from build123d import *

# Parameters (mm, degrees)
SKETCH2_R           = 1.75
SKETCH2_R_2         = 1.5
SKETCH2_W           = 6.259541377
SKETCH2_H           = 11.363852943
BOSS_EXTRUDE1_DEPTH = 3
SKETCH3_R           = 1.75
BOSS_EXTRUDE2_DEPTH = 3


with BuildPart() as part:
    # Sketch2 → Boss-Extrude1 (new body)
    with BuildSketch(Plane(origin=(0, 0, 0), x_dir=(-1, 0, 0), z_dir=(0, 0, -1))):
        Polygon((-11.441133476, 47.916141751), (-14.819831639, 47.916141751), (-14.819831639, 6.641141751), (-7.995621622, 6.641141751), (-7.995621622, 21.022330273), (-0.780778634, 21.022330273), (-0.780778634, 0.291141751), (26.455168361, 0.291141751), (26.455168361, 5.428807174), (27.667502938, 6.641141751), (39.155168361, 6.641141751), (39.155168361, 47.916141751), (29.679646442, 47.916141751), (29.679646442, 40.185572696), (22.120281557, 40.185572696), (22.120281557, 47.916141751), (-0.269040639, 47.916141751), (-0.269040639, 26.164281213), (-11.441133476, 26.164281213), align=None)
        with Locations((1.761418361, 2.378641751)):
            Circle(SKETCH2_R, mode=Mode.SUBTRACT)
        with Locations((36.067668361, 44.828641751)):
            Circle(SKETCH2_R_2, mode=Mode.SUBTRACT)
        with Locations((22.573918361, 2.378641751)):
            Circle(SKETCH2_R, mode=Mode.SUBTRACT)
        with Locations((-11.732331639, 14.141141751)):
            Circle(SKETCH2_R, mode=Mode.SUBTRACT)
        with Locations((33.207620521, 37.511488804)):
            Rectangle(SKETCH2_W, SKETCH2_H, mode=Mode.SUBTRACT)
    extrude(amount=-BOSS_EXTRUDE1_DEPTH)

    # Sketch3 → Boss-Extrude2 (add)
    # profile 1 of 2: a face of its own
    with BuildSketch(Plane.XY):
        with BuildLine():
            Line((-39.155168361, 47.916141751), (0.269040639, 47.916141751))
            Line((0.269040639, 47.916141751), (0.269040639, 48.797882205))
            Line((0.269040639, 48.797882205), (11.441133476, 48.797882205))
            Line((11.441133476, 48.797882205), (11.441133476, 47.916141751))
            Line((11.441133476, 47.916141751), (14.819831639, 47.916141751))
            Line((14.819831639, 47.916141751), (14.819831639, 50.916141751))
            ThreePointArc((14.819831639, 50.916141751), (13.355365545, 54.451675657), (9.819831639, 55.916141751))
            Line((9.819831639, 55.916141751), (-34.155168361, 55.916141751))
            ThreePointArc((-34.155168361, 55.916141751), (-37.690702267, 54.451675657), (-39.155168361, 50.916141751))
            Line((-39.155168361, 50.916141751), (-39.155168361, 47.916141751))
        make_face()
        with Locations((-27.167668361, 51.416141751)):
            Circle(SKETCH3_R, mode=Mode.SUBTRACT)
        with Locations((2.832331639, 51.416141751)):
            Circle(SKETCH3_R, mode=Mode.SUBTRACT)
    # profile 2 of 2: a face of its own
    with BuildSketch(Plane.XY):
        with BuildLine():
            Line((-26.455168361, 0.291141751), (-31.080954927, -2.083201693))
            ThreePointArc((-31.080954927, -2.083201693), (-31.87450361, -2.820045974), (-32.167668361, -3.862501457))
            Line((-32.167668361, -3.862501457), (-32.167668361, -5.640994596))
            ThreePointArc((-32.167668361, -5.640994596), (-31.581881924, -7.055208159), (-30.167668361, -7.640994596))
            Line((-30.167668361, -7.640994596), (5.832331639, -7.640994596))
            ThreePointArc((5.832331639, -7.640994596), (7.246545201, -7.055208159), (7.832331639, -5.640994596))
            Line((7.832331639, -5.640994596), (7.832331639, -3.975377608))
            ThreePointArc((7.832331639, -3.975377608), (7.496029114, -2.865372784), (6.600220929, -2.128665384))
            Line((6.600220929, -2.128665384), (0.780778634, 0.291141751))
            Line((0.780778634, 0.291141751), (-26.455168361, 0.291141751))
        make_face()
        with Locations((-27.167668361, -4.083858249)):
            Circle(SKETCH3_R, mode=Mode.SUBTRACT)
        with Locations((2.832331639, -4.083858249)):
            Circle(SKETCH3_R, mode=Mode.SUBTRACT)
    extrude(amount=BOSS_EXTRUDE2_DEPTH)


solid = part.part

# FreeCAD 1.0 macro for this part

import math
import FreeCAD as App
import Part
import Sketcher
from FreeCAD import Vector
Q = App.Units.Quantity


def add_polygon(sketch, points):
    """Adds a closed chain of lines whose ends are joined by coincident constraints."""
    first, n = sketch.GeometryCount, len(points)
    for a, b in zip(points, points[1:] + points[:1]):
        sketch.addGeometry(Part.LineSegment(App.Vector(*a, 0), App.Vector(*b, 0)), False)
    for i in range(n):
        sketch.addConstraint(Sketcher.Constraint("Coincident", first + i, 2, first + (i + 1) % n, 1))

doc = App.newDocument("Part")
params = doc.addObject("Spreadsheet::Sheet", "Params")
for row, (alias, value) in enumerate([
    ("sketch1_diameter", "3 mm"),
    ("sketch1_diameter2", "3.5 mm"),
    ("pad1_length", "3 mm"),
    ("sketch2_radius", "5 mm"),
    ("sketch2_radius2", "2 mm"),
    ("sketch2_diameter", "3.5 mm"),
    ("sketch2_width", "36 mm"),
    ("sketch2_height", "3 mm"),
    ("pad2_length", "3 mm"),
], start=1):
    params.set(f"A{row}", alias)
    params.set(f"B{row}", "=" + value)
    params.setAlias(f"B{row}", alias)

body = doc.addObject("PartDesign::Body", "Body")

# Sketch on XY plane
sketch1 = body.newObject("Sketcher::SketchObject", "Sketch")
sketch1.AttachmentSupport = (doc.getObject("XY_Plane"), [""])
sketch1.MapMode = "FlatFace"
add_polygon(sketch1, [(11.4, 47.9), (14.8, 47.9), (14.8, 6.6), (8, 6.6), (8, 21), (0.8, 21), (0.8, 0.3), (-26.5, 0.3), (-26.5, 5.4), (-27.7, 6.6), (-39.2, 6.6), (-39.2, 47.9), (-29.7, 47.9), (-29.7, 40.2), (-22.1, 40.2), (-22.1, 47.9), (0.3, 47.9), (0.3, 26.2), (11.4, 26.2)])  # lines 0-18
sketch1.addGeometry(Part.Circle(Vector(-1.8, 2.4, 0), Vector(0, 0, 1), 1.8), False)  # 19
sketch1.addGeometry(Part.Circle(Vector(11.7, 14.1, 0), Vector(0, 0, 1), 1.8), False)  # 20
sketch1.addGeometry(Part.Circle(Vector(-22.6, 2.4, 0), Vector(0, 0, 1), 1.8), False)  # 21
add_polygon(sketch1, [(-36.3, 31.8), (-30.1, 31.8), (-30.1, 43.2), (-36.3, 43.2)])  # lines 22-25
sketch1.addGeometry(Part.Circle(Vector(-36.1, 44.8, 0), Vector(0, 0, 1), 1.5), False)  # 26
sketch1.addConstraint(Sketcher.Constraint("Horizontal", 0))
sketch1.addConstraint(Sketcher.Constraint("Vertical", 1))
sketch1.addConstraint(Sketcher.Constraint("Horizontal", 2))
sketch1.addConstraint(Sketcher.Constraint("Vertical", 3))
sketch1.addConstraint(Sketcher.Constraint("Horizontal", 4))
sketch1.addConstraint(Sketcher.Constraint("Vertical", 5))
sketch1.addConstraint(Sketcher.Constraint("Horizontal", 6))
sketch1.addConstraint(Sketcher.Constraint("Vertical", 7))
sketch1.addConstraint(Sketcher.Constraint("Horizontal", 9))
sketch1.addConstraint(Sketcher.Constraint("Vertical", 10))
sketch1.addConstraint(Sketcher.Constraint("Horizontal", 11))
sketch1.addConstraint(Sketcher.Constraint("Vertical", 12))
sketch1.addConstraint(Sketcher.Constraint("Horizontal", 13))
sketch1.addConstraint(Sketcher.Constraint("Vertical", 14))
sketch1.addConstraint(Sketcher.Constraint("Horizontal", 15))
sketch1.addConstraint(Sketcher.Constraint("Vertical", 16))
sketch1.addConstraint(Sketcher.Constraint("Horizontal", 17))
sketch1.addConstraint(Sketcher.Constraint("Vertical", 18))
sketch1.addConstraint(Sketcher.Constraint("Horizontal", 22))
sketch1.addConstraint(Sketcher.Constraint("Vertical", 23))
sketch1.addConstraint(Sketcher.Constraint("Horizontal", 24))
sketch1.addConstraint(Sketcher.Constraint("Vertical", 25))
sketch1.addConstraint(Sketcher.Constraint("Equal", 19, 20))
sketch1.addConstraint(Sketcher.Constraint("Equal", 20, 21))
sketch1.addConstraint(Sketcher.Constraint("Horizontal", 19, 3, 21, 3))
sketch1.addConstraint(Sketcher.Constraint("Horizontal", 2, 2, 8, 2))
sketch1.addConstraint(Sketcher.Constraint("Horizontal", 0, 2, 10, 2))
sketch1.addConstraint(Sketcher.Constraint("Horizontal", 11, 2, 14, 2))
sketch1.addConstraint(Sketcher.Constraint("Diameter", 26, Q("3 mm")))
sketch1.addConstraint(Sketcher.Constraint("Diameter", 19, Q("3.5 mm")))
sketch1.addConstraint(Sketcher.Constraint("Angle", 8, Q("135 deg")))
sketch1.addConstraint(Sketcher.Constraint("DistanceX", 26, 3, 20, 3, Q("47.8 mm")))
sketch1.addConstraint(Sketcher.Constraint("DistanceY", 1, 2, 20, 3, Q("7.5 mm")))
sketch1.addConstraint(Sketcher.Constraint("DistanceX", 9, 2, 7, 2, Q("12.7 mm")))
sketch1.addConstraint(Sketcher.Constraint("DistanceY", 1, 2, 1, 1, Q("41.275 mm")))
sketch1.addConstraint(Sketcher.Constraint("DistanceY", 21, 3, 26, 3, Q("42.45 mm")))
sketch1.addConstraint(Sketcher.Constraint("DistanceY", 5, 2, 2, 2, Q("6.35 mm")))
sketch1.addConstraint(Sketcher.Constraint("DistanceX", 0, 1, 0, 2, Q("3.378698 mm")))
sketch1.addConstraint(Sketcher.Constraint("Distance", 8, Q("1.7145 mm")))
sketch1.addConstraint(Sketcher.Constraint("DistanceX", 2, 2, 2, 1, Q("6.82421 mm")))
sketch1.addConstraint(Sketcher.Constraint("DistanceX", 11, 1, 11, 2, Q("9.475522 mm")))
sketch1.addConstraint(Sketcher.Constraint("DistanceX", 22, 1, 22, 2, Q("6.259541 mm")))
sketch1.addConstraint(Sketcher.Constraint("DistanceY", 3, 1, 3, 2, Q("14.381189 mm")))
sketch1.addConstraint(Sketcher.Constraint("DistanceY", 12, 2, 12, 1, Q("7.730569 mm")))
sketch1.addConstraint(Sketcher.Constraint("DistanceY", 16, 2, 16, 1, Q("21.751861 mm")))
sketch1.addConstraint(Sketcher.Constraint("DistanceY", 19, 3, 20, 3, Q("11.7625 mm")))
sketch1.addConstraint(Sketcher.Constraint("DistanceX", 21, 3, 19, 3, Q("20.8125 mm")))
sketch1.addConstraint(Sketcher.Constraint("DistanceX", 20, 3, 0, 2, Q("3.0875 mm")))
sketch1.addConstraint(Sketcher.Constraint("DistanceX", 10, 2, 26, 3, Q("3.0875 mm")))
sketch1.addConstraint(Sketcher.Constraint("DistanceX", 4, 2, 4, 1, Q("7.214843 mm")))
sketch1.addConstraint(Sketcher.Constraint("DistanceX", 13, 1, 13, 2, Q("7.559365 mm")))
sketch1.addConstraint(Sketcher.Constraint("DistanceX", 15, 1, 15, 2, Q("22.389322 mm")))
sketch1.addConstraint(Sketcher.Constraint("DistanceY", 23, 1, 23, 2, Q("11.363853 mm")))
sketch1.addConstraint(Sketcher.Constraint("DistanceX", 19, 3, -1, 1, Q("1.761418 mm")))
sketch1.addConstraint(Sketcher.Constraint("DistanceY", -1, 1, 19, 3, Q("2.378642 mm")))
sketch1.addConstraint(Sketcher.Constraint("DistanceX", -1, 1, 20, 3, Q("11.732332 mm")))
sketch1.addConstraint(Sketcher.Constraint("DistanceX", 22, 2, -1, 1, Q("30.07785 mm")))
sketch1.addConstraint(Sketcher.Constraint("DistanceY", 22, 2, 12, 2, Q("8.35601 mm")))
sketch1.setExpression("Constraints[51]", "Params.sketch1_diameter")
sketch1.setExpression("Constraints[52]", "Params.sketch1_diameter2")
pad1 = body.newObject("PartDesign::Pad", "Pad")
pad1.Profile = sketch1
pad1.setExpression("Length", "Params.pad1_length")

# Sketch on XY plane
sketch2 = body.newObject("Sketcher::SketchObject", "Sketch001")
sketch2.AttachmentSupport = (doc.getObject("XY_Plane"), [""])
sketch2.MapMode = "FlatFace"
sketch2.addGeometry(Part.LineSegment(Vector(-39.2, 47.9, 0), Vector(0.3, 47.9, 0)), False)
sketch2.addGeometry(Part.LineSegment(Vector(0.3, 47.9, 0), Vector(0.3, 48.8, 0)), False)
sketch2.addGeometry(Part.LineSegment(Vector(0.3, 48.8, 0), Vector(11.4, 48.8, 0)), False)
sketch2.addGeometry(Part.LineSegment(Vector(11.4, 48.8, 0), Vector(11.4, 47.9, 0)), False)
sketch2.addGeometry(Part.LineSegment(Vector(11.4, 47.9, 0), Vector(14.8, 47.9, 0)), False)
sketch2.addGeometry(Part.LineSegment(Vector(14.8, 47.9, 0), Vector(14.8, 50.9, 0)), False)
sketch2.addGeometry(Part.ArcOfCircle(Part.Circle(Vector(9.8, 50.9, 0), Vector(0, 0, 1), 5), math.radians(0), math.radians(90)), False)
sketch2.addGeometry(Part.LineSegment(Vector(9.8, 55.9, 0), Vector(-34.2, 55.9, 0)), False)
sketch2.addGeometry(Part.ArcOfCircle(Part.Circle(Vector(-34.2, 50.9, 0), Vector(0, 0, 1), 5), math.radians(90), math.radians(180)), False)
sketch2.addGeometry(Part.LineSegment(Vector(-39.2, 50.9, 0), Vector(-39.2, 47.9, 0)), False)
sketch2.addGeometry(Part.Circle(Vector(-27.2, 51.4, 0), Vector(0, 0, 1), 1.8), False)
sketch2.addGeometry(Part.Circle(Vector(2.8, 51.4, 0), Vector(0, 0, 1), 1.8), False)
sketch2.addGeometry(Part.LineSegment(Vector(-26.5, 0.3, 0), Vector(-31.1, -2.1, 0)), False)
sketch2.addGeometry(Part.ArcOfCircle(Part.Circle(Vector(-30.2, -3.9, 0), Vector(0, 0, 1), 2), math.radians(117), math.radians(180)), False)
sketch2.addGeometry(Part.LineSegment(Vector(-32.2, -3.9, 0), Vector(-32.2, -5.6, 0)), False)
sketch2.addGeometry(Part.ArcOfCircle(Part.Circle(Vector(-30.2, -5.6, 0), Vector(0, 0, 1), 2), math.radians(180), math.radians(270)), False)
sketch2.addGeometry(Part.LineSegment(Vector(-30.2, -7.6, 0), Vector(5.8, -7.6, 0)), False)
sketch2.addGeometry(Part.ArcOfCircle(Part.Circle(Vector(5.8, -5.6, 0), Vector(0, 0, 1), 2), math.radians(-90), math.radians(0)), False)
sketch2.addGeometry(Part.LineSegment(Vector(7.8, -5.6, 0), Vector(7.8, -4, 0)), False)
sketch2.addGeometry(Part.ArcOfCircle(Part.Circle(Vector(5.8, -4, 0), Vector(0, 0, 1), 2), math.radians(0), math.radians(67)), False)
sketch2.addGeometry(Part.LineSegment(Vector(6.6, -2.1, 0), Vector(0.8, 0.3, 0)), False)
sketch2.addGeometry(Part.LineSegment(Vector(0.8, 0.3, 0), Vector(-26.5, 0.3, 0)), False)
sketch2.addGeometry(Part.Circle(Vector(-27.2, -4.1, 0), Vector(0, 0, 1), 1.8), False)
sketch2.addGeometry(Part.Circle(Vector(2.8, -4.1, 0), Vector(0, 0, 1), 1.8), False)
sketch2.addConstraint(Sketcher.Constraint("Coincident", 0, 2, 1, 1))
sketch2.addConstraint(Sketcher.Constraint("Coincident", 1, 2, 2, 1))
sketch2.addConstraint(Sketcher.Constraint("Coincident", 2, 2, 3, 1))
sketch2.addConstraint(Sketcher.Constraint("Coincident", 3, 2, 4, 1))
sketch2.addConstraint(Sketcher.Constraint("Coincident", 4, 2, 5, 1))
sketch2.addConstraint(Sketcher.Constraint("Tangent", 5, 2, 6, 1))
sketch2.addConstraint(Sketcher.Constraint("Tangent", 6, 2, 7, 1))
sketch2.addConstraint(Sketcher.Constraint("Tangent", 7, 2, 8, 1))
sketch2.addConstraint(Sketcher.Constraint("Tangent", 8, 2, 9, 1))
sketch2.addConstraint(Sketcher.Constraint("Coincident", 9, 2, 0, 1))
sketch2.addConstraint(Sketcher.Constraint("Tangent", 12, 2, 13, 1))
sketch2.addConstraint(Sketcher.Constraint("Tangent", 13, 2, 14, 1))
sketch2.addConstraint(Sketcher.Constraint("Tangent", 14, 2, 15, 1))
sketch2.addConstraint(Sketcher.Constraint("Tangent", 15, 2, 16, 1))
sketch2.addConstraint(Sketcher.Constraint("Tangent", 16, 2, 17, 1))
sketch2.addConstraint(Sketcher.Constraint("Tangent", 17, 2, 18, 1))
sketch2.addConstraint(Sketcher.Constraint("Tangent", 18, 2, 19, 1))
sketch2.addConstraint(Sketcher.Constraint("Tangent", 19, 2, 20, 1))
sketch2.addConstraint(Sketcher.Constraint("Coincident", 20, 2, 21, 1))
sketch2.addConstraint(Sketcher.Constraint("Coincident", 21, 2, 12, 1))
sketch2.addConstraint(Sketcher.Constraint("Horizontal", 0))
sketch2.addConstraint(Sketcher.Constraint("Vertical", 1))
sketch2.addConstraint(Sketcher.Constraint("Horizontal", 2))
sketch2.addConstraint(Sketcher.Constraint("Vertical", 3))
sketch2.addConstraint(Sketcher.Constraint("Horizontal", 4))
sketch2.addConstraint(Sketcher.Constraint("Vertical", 5))
sketch2.addConstraint(Sketcher.Constraint("Horizontal", 7))
sketch2.addConstraint(Sketcher.Constraint("Vertical", 9))
sketch2.addConstraint(Sketcher.Constraint("Vertical", 14))
sketch2.addConstraint(Sketcher.Constraint("Horizontal", 16))
sketch2.addConstraint(Sketcher.Constraint("Vertical", 18))
sketch2.addConstraint(Sketcher.Constraint("Horizontal", 21))
sketch2.addConstraint(Sketcher.Constraint("Equal", 6, 8))
sketch2.addConstraint(Sketcher.Constraint("Equal", 10, 11))
sketch2.addConstraint(Sketcher.Constraint("Equal", 13, 15))
sketch2.addConstraint(Sketcher.Constraint("Equal", 15, 17))
sketch2.addConstraint(Sketcher.Constraint("Equal", 17, 19))
sketch2.addConstraint(Sketcher.Constraint("Equal", 11, 22))
sketch2.addConstraint(Sketcher.Constraint("Equal", 22, 23))
sketch2.addConstraint(Sketcher.Constraint("Horizontal", 10, 3, 11, 3))
sketch2.addConstraint(Sketcher.Constraint("Horizontal", 22, 3, 23, 3))
sketch2.addConstraint(Sketcher.Constraint("Horizontal", 0, 2, 3, 2))
sketch2.addConstraint(Sketcher.Constraint("Vertical", 10, 3, 22, 3))
sketch2.addConstraint(Sketcher.Constraint("Vertical", 11, 3, 23, 3))
sketch2.addConstraint(Sketcher.Constraint("Radius", 6, Q("5 mm")))
sketch2.addConstraint(Sketcher.Constraint("Radius", 13, Q("2 mm")))
sketch2.addConstraint(Sketcher.Constraint("Diameter", 10, Q("3.5 mm")))
sketch2.addConstraint(Sketcher.Constraint("DistanceX", 16, 1, 16, 2, Q("36 mm")))
sketch2.addConstraint(Sketcher.Constraint("DistanceY", 5, 1, 5, 2, Q("3 mm")))
sketch2.addConstraint(Sketcher.Constraint("DistanceX", 10, 3, 11, 3, Q("30 mm")))
sketch2.addConstraint(Sketcher.Constraint("DistanceX", 13, 3, 10, 3, Q("3 mm")))
sketch2.addConstraint(Sketcher.Constraint("DistanceY", 22, 3, 8, 3, Q("55 mm")))
sketch2.addConstraint(Sketcher.Constraint("DistanceY", 8, 3, 10, 3, Q("0.5 mm")))
sketch2.addConstraint(Sketcher.Constraint("DistanceX", 7, 2, 7, 1, Q("43.975 mm")))
sketch2.addConstraint(Sketcher.Constraint("DistanceX", 4, 1, 4, 2, Q("3.378698 mm")))
sketch2.addConstraint(Sketcher.Constraint("DistanceY", 23, 3, 20, 2, Q("4.375 mm")))
sketch2.addConstraint(Sketcher.Constraint("DistanceX", 0, 1, 0, 2, Q("39.424209 mm")))
sketch2.addConstraint(Sketcher.Constraint("DistanceY", 1, 1, 1, 2, Q("0.88174 mm")))
sketch2.addConstraint(Sketcher.Constraint("DistanceY", 13, 3, -1, 1, Q("3.862501 mm")))
sketch2.addConstraint(Sketcher.Constraint("DistanceY", 12, 2, -1, 1, Q("2.083202 mm")))
sketch2.addConstraint(Sketcher.Constraint("DistanceX", 8, 3, 10, 3, Q("6.9875 mm")))
sketch2.addConstraint(Sketcher.Constraint("DistanceX", 22, 3, 21, 2, Q("0.7125 mm")))
sketch2.addConstraint(Sketcher.Constraint("Distance", 20, Q("6.30249 mm")))
sketch2.addConstraint(Sketcher.Constraint("DistanceX", 21, 2, 21, 1, Q("27.235947 mm")))
sketch2.addConstraint(Sketcher.Constraint("DistanceY", 14, 2, 14, 1, Q("1.778493 mm")))
sketch2.addConstraint(Sketcher.Constraint("DistanceX", -1, 1, 6, 3, Q("9.819832 mm")))
sketch2.setExpression("Constraints[44]", "Params.sketch2_radius")
sketch2.setExpression("Constraints[45]", "Params.sketch2_radius2")
sketch2.setExpression("Constraints[46]", "Params.sketch2_diameter")
sketch2.setExpression("Constraints[47]", "Params.sketch2_width")
sketch2.setExpression("Constraints[48]", "Params.sketch2_height")
pad2 = body.newObject("PartDesign::Pad", "Pad001")
pad2.Profile = sketch2
pad2.setExpression("Length", "Params.pad2_length")

doc.recompute()
